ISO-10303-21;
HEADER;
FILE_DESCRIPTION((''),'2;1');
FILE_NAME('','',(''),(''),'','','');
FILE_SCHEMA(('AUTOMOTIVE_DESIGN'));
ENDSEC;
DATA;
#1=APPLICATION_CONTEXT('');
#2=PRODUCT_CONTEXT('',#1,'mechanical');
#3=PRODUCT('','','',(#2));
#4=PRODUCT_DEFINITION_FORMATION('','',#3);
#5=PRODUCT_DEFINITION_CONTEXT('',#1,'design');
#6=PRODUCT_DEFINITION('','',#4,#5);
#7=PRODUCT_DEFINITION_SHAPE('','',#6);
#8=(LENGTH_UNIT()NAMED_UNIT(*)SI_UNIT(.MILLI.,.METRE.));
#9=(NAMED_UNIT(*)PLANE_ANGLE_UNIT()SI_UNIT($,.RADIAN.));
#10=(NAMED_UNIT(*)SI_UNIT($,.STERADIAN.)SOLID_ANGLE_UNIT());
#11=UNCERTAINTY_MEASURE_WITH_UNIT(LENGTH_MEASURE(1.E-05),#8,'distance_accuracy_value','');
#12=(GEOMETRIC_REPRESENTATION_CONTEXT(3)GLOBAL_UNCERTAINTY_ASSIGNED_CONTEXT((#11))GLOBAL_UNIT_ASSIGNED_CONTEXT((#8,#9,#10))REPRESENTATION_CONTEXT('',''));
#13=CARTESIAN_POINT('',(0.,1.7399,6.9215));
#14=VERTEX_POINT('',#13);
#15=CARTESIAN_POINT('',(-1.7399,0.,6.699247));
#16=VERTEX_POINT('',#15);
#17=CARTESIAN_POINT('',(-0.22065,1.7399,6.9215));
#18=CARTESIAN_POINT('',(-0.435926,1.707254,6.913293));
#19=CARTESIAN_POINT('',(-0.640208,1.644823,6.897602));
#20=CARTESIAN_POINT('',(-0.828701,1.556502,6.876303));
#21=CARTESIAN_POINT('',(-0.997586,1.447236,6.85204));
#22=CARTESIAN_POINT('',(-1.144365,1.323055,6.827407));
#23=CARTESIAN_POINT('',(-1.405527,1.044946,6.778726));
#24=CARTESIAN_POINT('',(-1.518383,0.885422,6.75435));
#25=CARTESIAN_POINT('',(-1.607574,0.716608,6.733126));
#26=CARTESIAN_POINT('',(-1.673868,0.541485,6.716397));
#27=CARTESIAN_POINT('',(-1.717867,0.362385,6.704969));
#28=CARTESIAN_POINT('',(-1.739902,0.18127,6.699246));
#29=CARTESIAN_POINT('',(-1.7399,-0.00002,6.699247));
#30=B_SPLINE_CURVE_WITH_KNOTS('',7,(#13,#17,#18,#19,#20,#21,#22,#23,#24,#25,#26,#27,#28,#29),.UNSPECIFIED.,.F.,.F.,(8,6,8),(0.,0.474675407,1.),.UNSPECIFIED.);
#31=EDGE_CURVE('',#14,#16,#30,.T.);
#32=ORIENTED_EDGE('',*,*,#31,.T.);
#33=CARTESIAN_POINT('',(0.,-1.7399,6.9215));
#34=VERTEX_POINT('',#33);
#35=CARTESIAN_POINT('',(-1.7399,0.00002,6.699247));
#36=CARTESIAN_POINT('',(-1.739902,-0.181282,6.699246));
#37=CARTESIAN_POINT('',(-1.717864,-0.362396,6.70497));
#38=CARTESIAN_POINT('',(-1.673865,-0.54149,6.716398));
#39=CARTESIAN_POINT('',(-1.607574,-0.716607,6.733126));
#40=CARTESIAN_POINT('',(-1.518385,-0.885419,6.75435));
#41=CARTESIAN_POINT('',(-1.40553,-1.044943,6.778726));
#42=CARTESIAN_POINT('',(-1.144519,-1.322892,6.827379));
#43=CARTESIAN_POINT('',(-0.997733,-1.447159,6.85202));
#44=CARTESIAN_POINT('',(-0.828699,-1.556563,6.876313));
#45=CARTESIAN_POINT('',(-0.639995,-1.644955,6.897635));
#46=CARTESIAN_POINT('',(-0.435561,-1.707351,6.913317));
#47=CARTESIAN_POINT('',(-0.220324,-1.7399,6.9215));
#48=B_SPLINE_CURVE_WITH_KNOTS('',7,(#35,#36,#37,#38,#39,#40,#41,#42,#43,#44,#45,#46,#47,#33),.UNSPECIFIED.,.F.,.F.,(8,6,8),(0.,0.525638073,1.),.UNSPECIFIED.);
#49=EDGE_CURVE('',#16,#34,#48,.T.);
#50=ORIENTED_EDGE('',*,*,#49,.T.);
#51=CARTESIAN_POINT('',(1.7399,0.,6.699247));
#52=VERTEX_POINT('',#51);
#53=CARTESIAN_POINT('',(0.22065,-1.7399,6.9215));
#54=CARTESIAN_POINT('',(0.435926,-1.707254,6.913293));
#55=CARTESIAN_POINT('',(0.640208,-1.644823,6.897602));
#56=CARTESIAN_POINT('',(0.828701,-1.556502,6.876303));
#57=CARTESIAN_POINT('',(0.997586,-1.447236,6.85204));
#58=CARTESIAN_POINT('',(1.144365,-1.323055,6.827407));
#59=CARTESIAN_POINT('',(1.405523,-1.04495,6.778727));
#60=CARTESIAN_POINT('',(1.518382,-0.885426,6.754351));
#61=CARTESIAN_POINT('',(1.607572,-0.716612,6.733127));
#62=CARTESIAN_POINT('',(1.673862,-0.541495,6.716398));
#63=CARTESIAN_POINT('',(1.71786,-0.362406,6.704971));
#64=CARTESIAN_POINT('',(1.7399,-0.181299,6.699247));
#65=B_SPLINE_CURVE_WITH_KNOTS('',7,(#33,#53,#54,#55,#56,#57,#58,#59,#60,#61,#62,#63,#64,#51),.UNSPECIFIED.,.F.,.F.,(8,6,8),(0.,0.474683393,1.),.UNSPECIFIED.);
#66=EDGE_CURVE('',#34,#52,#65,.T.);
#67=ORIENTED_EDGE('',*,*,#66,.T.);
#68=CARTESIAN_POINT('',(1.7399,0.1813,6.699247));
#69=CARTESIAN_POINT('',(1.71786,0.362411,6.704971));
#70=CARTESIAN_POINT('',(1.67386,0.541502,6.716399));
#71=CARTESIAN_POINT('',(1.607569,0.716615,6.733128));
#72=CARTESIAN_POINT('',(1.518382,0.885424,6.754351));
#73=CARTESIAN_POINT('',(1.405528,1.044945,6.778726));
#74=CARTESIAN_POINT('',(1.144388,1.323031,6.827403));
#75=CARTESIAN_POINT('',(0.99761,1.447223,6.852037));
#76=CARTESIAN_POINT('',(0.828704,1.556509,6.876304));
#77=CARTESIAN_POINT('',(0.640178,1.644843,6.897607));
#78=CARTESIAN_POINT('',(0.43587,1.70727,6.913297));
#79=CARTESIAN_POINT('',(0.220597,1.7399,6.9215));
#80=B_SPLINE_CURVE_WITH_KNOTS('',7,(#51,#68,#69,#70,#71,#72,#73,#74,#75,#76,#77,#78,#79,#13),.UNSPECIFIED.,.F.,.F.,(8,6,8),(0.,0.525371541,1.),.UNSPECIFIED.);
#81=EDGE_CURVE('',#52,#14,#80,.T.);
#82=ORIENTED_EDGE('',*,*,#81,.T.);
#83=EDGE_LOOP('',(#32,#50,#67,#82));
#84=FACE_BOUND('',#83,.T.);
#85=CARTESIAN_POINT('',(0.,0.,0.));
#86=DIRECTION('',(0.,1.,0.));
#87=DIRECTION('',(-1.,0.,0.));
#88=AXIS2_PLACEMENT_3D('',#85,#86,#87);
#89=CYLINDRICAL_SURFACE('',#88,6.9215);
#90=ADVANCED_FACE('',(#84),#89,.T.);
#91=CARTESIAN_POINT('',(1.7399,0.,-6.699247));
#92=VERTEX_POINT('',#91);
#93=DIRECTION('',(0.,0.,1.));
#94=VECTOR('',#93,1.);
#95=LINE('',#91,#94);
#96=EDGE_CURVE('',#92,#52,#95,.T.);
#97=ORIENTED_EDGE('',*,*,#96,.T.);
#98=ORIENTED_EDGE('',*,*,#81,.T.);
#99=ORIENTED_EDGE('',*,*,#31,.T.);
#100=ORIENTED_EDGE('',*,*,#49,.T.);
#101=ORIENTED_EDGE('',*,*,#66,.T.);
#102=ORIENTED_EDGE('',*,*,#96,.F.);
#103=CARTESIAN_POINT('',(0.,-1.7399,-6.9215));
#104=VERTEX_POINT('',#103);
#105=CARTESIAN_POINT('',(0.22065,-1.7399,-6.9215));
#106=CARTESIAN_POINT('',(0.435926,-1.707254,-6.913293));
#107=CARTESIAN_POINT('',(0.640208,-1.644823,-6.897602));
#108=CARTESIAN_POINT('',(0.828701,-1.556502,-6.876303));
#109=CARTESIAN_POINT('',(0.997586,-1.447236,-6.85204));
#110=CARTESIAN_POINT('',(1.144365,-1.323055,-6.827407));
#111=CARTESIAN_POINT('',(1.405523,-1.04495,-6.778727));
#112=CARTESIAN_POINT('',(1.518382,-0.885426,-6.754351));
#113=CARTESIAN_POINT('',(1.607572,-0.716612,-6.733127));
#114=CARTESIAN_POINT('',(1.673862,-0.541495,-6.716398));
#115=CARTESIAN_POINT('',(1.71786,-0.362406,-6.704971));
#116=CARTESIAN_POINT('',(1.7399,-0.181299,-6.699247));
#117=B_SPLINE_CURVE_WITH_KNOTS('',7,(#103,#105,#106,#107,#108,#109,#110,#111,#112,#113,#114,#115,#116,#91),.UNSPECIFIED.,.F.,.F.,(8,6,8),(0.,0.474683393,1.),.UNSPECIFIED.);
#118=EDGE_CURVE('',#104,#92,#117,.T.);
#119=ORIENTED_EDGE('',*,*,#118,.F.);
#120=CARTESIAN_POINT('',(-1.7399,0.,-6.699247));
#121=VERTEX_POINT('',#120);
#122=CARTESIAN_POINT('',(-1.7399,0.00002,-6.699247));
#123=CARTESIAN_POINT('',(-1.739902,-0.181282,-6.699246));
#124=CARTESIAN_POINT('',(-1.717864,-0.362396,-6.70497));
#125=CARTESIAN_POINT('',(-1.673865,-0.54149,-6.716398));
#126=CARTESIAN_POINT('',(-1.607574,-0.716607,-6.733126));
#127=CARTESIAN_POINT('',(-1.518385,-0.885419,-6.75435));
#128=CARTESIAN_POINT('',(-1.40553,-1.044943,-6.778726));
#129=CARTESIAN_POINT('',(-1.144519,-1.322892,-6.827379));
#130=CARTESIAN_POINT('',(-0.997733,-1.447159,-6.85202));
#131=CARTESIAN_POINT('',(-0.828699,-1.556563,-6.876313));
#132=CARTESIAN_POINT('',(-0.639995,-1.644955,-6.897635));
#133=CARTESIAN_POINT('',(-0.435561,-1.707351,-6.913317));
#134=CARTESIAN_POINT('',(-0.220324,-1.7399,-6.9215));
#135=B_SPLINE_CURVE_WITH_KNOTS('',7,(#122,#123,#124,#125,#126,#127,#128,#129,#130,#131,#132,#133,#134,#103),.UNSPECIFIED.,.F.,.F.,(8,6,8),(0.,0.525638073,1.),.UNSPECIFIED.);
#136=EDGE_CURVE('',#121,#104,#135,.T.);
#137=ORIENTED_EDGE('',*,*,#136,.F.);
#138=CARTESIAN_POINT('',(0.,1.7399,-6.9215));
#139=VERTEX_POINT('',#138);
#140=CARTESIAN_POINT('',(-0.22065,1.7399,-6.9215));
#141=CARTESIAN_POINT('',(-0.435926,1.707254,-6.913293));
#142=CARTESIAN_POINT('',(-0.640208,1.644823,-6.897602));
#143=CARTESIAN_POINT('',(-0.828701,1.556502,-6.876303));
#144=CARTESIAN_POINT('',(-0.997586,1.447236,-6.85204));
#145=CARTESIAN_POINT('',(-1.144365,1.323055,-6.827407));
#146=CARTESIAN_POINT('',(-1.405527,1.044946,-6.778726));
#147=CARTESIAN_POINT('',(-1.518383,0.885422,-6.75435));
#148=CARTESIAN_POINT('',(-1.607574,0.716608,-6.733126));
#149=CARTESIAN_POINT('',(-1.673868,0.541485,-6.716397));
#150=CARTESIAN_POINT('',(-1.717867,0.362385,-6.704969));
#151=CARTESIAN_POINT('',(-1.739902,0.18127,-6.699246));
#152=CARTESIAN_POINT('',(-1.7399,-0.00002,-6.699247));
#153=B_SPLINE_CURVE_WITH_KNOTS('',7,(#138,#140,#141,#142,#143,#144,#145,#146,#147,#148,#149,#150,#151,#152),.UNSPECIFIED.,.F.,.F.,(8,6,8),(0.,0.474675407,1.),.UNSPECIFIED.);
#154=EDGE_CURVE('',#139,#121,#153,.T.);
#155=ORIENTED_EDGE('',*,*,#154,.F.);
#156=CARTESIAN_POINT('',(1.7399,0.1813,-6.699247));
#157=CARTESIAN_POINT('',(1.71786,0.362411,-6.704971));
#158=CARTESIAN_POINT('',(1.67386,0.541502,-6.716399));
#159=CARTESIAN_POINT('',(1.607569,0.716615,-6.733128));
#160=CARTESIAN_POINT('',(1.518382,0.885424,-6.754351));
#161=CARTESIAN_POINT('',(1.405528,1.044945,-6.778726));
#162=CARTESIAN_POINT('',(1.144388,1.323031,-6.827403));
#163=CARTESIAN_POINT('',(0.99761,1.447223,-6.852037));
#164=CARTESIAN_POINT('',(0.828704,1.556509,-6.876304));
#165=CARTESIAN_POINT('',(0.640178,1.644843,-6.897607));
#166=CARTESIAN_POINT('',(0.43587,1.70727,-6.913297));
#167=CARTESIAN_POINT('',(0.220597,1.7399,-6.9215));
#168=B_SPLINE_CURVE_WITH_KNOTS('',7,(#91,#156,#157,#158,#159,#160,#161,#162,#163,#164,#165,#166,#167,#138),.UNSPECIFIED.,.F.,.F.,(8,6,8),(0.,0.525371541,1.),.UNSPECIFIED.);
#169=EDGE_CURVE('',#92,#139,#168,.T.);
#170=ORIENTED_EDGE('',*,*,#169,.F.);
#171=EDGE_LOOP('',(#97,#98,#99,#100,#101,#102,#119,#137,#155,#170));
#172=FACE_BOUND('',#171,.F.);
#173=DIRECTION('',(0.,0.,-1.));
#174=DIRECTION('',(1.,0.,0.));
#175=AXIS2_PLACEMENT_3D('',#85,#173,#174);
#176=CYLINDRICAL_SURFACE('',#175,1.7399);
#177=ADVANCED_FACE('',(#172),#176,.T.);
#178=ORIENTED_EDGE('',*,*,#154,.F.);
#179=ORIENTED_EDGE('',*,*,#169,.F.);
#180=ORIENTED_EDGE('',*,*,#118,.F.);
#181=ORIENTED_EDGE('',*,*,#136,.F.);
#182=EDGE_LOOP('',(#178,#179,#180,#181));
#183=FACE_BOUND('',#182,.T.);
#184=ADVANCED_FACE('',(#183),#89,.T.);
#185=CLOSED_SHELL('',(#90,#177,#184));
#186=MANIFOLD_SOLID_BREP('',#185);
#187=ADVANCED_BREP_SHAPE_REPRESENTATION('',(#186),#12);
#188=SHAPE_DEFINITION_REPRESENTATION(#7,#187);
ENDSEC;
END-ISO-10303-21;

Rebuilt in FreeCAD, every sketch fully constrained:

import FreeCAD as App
import Part
import Sketcher

V = App.Vector
Q = App.Units.Quantity

doc = App.newDocument("Part")
body = doc.addObject("PartDesign::Body", "Body")

sketch1 = body.newObject("Sketcher::SketchObject", "Sketch")
sketch1.AttachmentSupport = (doc.getObject("XY_Plane"), [""])
sketch1.MapMode = "FlatFace"
sketch1.addGeometry(Part.Circle(V(0, 0, 0), V(0, 0, 1), 1.7399), False)
sketch1.addConstraint([
    Sketcher.Constraint("Coincident", 0, 3, -1, 1),
    Sketcher.Constraint("Diameter", 0, Q("0.137 in")),
])
pad1 = body.newObject("PartDesign::Pad", "Pad")
pad1.Profile = sketch1
pad1.Length = Q("0.545 in")
pad1.Midplane = True

sketch2 = body.newObject("Sketcher::SketchObject", "Sketch001")
sketch2.AttachmentSupport = (doc.getObject("XZ_Plane"), [""])
sketch2.MapMode = "FlatFace"
sketch2.addGeometry([
    Part.Circle(V(0, 0, 0), V(0, 0, 1), 7.1374),
    Part.Circle(V(0, 0, 0), V(0, 0, 1), 6.9215),
], False)
sketch2.addConstraint([
    Sketcher.Constraint("Coincident", 0, 3, -1, 1),
    Sketcher.Constraint("Coincident", 1, 3, -1, 1),
    Sketcher.Constraint("Diameter", 0, Q("0.562 in")),
    Sketcher.Constraint("Diameter", 1, Q("0.545 in")),
])
pocket1 = body.newObject("PartDesign::Pocket", "Pocket")
pocket1.Profile = sketch2
pocket1.Type = "ThroughAll"
pocket1.Midplane = True

doc.recompute()
